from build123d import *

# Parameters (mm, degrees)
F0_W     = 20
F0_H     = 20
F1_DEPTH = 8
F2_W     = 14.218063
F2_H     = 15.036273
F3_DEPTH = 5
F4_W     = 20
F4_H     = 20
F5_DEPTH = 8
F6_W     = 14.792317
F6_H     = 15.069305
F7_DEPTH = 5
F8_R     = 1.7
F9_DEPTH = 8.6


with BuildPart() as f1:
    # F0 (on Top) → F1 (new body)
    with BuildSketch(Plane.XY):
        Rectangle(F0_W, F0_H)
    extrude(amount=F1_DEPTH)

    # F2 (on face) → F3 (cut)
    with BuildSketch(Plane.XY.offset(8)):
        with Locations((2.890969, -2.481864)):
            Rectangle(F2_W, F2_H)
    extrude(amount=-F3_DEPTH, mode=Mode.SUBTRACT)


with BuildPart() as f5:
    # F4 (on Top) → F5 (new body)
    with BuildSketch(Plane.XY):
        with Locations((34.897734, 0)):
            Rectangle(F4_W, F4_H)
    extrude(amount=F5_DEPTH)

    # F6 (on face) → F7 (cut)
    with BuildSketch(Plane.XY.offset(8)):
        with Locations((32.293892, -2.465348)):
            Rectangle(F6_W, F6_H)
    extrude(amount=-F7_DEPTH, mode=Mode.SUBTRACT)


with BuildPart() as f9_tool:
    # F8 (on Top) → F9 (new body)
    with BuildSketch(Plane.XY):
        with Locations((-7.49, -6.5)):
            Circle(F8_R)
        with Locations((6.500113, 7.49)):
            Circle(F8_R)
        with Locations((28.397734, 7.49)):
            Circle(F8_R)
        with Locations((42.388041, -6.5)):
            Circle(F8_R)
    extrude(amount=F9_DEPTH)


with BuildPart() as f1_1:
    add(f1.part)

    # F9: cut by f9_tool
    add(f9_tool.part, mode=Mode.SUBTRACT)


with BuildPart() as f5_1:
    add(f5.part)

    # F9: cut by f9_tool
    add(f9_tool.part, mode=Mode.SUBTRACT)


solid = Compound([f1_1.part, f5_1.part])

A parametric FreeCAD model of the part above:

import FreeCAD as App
import Part
import Sketcher

V = App.Vector
Q = App.Units.Quantity

doc = App.newDocument("Part")
body = doc.addObject("PartDesign::Body", "Body")

# Sketch on XY plane
sketch1 = doc.addObject("Sketcher::SketchObject", "Sketch")
body.addObject(sketch1)
sketch1.AttachmentSupport = (doc.XY_Plane, [""])
sketch1.MapMode = "FlatFace"
sketch1.addGeometry([
    Part.LineSegment(V(-10, 10, 0), V(-10, -10, 0)),
    Part.LineSegment(V(-10, -10, 0), V(10, -10, 0)),
    Part.LineSegment(V(10, -10, 0), V(10, 10, 0)),
    Part.LineSegment(V(10, 10, 0), V(-10, 10, 0)),
], False)
sketch1.addConstraint([
    Sketcher.Constraint("Coincident", 0, 2, 1, 1),
    Sketcher.Constraint("Coincident", 1, 2, 2, 1),
    Sketcher.Constraint("Coincident", 2, 2, 3, 1),
    Sketcher.Constraint("Coincident", 3, 2, 0, 1),
    Sketcher.Constraint("Vertical", 0),
    Sketcher.Constraint("Horizontal", 1),
    Sketcher.Constraint("Vertical", 2),
    Sketcher.Constraint("Horizontal", 3),
    Sketcher.Constraint("Symmetric", 0, 2, 2, 2, -1, 1),
    Sketcher.Constraint("Equal", 3, 0),
    Sketcher.Constraint("DistanceX", 1, 1, 1, 2, Q("20 mm")),
])
pad1 = doc.addObject("PartDesign::Pad", "Pad")
body.addObject(pad1)
pad1.Profile = sketch1
pad1.Length = 8

# Sketch on XY plane
sketch2 = doc.addObject("Sketcher::SketchObject", "Sketch001")
body.addObject(sketch2)
sketch2.AttachmentSupport = (doc.XY_Plane, [""])
sketch2.MapMode = "FlatFace"
sketch2.AttachmentOffset = App.Placement(V(0, 0, 8), App.Rotation())
sketch2.addGeometry([
    Part.LineSegment(V(-4, 5, 0), V(-4, -10, 0)),
    Part.LineSegment(V(-4, -10, 0), V(10, -10, 0)),
    Part.LineSegment(V(10, -10, 0), V(10, 5, 0)),
    Part.LineSegment(V(10, 5, 0), V(-4, 5, 0)),
], False)
sketch2.addConstraint([
    Sketcher.Constraint("Coincident", 0, 2, 1, 1),
    Sketcher.Constraint("Coincident", 1, 2, 2, 1),
    Sketcher.Constraint("Coincident", 2, 2, 3, 1),
    Sketcher.Constraint("Coincident", 3, 2, 0, 1),
    Sketcher.Constraint("Vertical", 0),
    Sketcher.Constraint("Horizontal", 1),
    Sketcher.Constraint("Vertical", 2),
    Sketcher.Constraint("Horizontal", 3),
    Sketcher.Constraint("DistanceY", 0, 2, -1, 1, Q("10.000001 mm")),
    Sketcher.Constraint("DistanceX", -1, 1, 1, 2, Q("10.000001 mm")),
    Sketcher.Constraint("DistanceX", 1, 1, 1, 2, Q("14.218063 mm")),
    Sketcher.Constraint("DistanceY", 0, 2, 0, 1, Q("15.036273 mm")),
])
pocket1 = doc.addObject("PartDesign::Pocket", "Pocket")
body.addObject(pocket1)
pocket1.Profile = sketch2
pocket1.Length = 5
body2 = doc.addObject("PartDesign::Body", "Body001")

# Sketch on XY plane
sketch3 = doc.addObject("Sketcher::SketchObject", "Sketch002")
body2.addObject(sketch3)
sketch3.AttachmentSupport = (doc.getObject("XY_Plane001"), [""])
sketch3.MapMode = "FlatFace"
sketch3.addGeometry([
    Part.LineSegment(V(25, 10, 0), V(25, -10, 0)),
    Part.LineSegment(V(25, -10, 0), V(45, -10, 0)),
    Part.LineSegment(V(45, -10, 0), V(45, 10, 0)),
    Part.LineSegment(V(45, 10, 0), V(25, 10, 0)),
], False)
sketch3.addConstraint([
    Sketcher.Constraint("Coincident", 0, 2, 1, 1),
    Sketcher.Constraint("Coincident", 1, 2, 2, 1),
    Sketcher.Constraint("Coincident", 2, 2, 3, 1),
    Sketcher.Constraint("Coincident", 3, 2, 0, 1),
    Sketcher.Constraint("Vertical", 0),
    Sketcher.Constraint("Horizontal", 1),
    Sketcher.Constraint("Vertical", 2),
    Sketcher.Constraint("Horizontal", 3),
    Sketcher.Constraint("Equal", 3, 0),
    Sketcher.Constraint("DistanceX", 1, 1, 1, 2, Q("20 mm")),
    Sketcher.Constraint("DistanceY", 0, 2, -1, 1, Q("10 mm")),
    Sketcher.Constraint("DistanceX", -1, 1, 0, 2, Q("24.897734 mm")),
])
pad2 = doc.addObject("PartDesign::Pad", "Pad001")
body2.addObject(pad2)
pad2.Profile = sketch3
pad2.Length = 8

# Sketch on XY plane
sketch4 = doc.addObject("Sketcher::SketchObject", "Sketch003")
body2.addObject(sketch4)
sketch4.AttachmentSupport = (doc.getObject("XY_Plane001"), [""])
sketch4.MapMode = "FlatFace"
sketch4.AttachmentOffset = App.Placement(V(0, 0, 8), App.Rotation())
sketch4.addGeometry([
    Part.LineSegment(V(25, 5, 0), V(25, -10, 0)),
    Part.LineSegment(V(25, -10, 0), V(40, -10, 0)),
    Part.LineSegment(V(40, -10, 0), V(40, 5, 0)),
    Part.LineSegment(V(40, 5, 0), V(25, 5, 0)),
], False)
sketch4.addConstraint([
    Sketcher.Constraint("Coincident", 0, 2, 1, 1),
    Sketcher.Constraint("Coincident", 1, 2, 2, 1),
    Sketcher.Constraint("Coincident", 2, 2, 3, 1),
    Sketcher.Constraint("Coincident", 3, 2, 0, 1),
    Sketcher.Constraint("Vertical", 0),
    Sketcher.Constraint("Horizontal", 1),
    Sketcher.Constraint("Vertical", 2),
    Sketcher.Constraint("Horizontal", 3),
    Sketcher.Constraint("DistanceY", 0, 2, -1, 1, Q("10.000001 mm")),
    Sketcher.Constraint("DistanceX", 1, 1, 1, 2, Q("14.792317 mm")),
    Sketcher.Constraint("DistanceY", 0, 2, 0, 1, Q("15.069305 mm")),
    Sketcher.Constraint("DistanceX", -1, 1, 1, 2, Q("39.69005 mm")),
])
pocket2 = doc.addObject("PartDesign::Pocket", "Pocket001")
body2.addObject(pocket2)
pocket2.Profile = sketch4
pocket2.Length = 5
body3 = doc.addObject("PartDesign::Body", "Body002")
body3.AllowCompound = True

# Sketch on XY plane
sketch5 = doc.addObject("Sketcher::SketchObject", "Sketch004")
body3.addObject(sketch5)
sketch5.AttachmentSupport = (doc.getObject("XY_Plane002"), [""])
sketch5.MapMode = "FlatFace"
sketch5.addGeometry([
    Part.Circle(V(-7.5, -6.5, 0), V(0, 0, 1), 1.7),
    Part.Circle(V(6.5, 7.5, 0), V(0, 0, 1), 1.7),
    Part.Circle(V(28.4, 7.5, 0), V(0, 0, 1), 1.7),
    Part.Circle(V(42.4, -6.5, 0), V(0, 0, 1), 1.7),
], False)
sketch5.addConstraint([
    Sketcher.Constraint("Equal", 0, 1),
    Sketcher.Constraint("Equal", 1, 2),
    Sketcher.Constraint("Equal", 2, 3),
    Sketcher.Constraint("Horizontal", 1, 3, 2, 3),
    Sketcher.Constraint("Horizontal", 0, 3, 3, 3),
    Sketcher.Constraint("Diameter", 0, Q("3.4 mm")),
    Sketcher.Constraint("DistanceY", 0, 3, -1, 1, Q("6.5 mm")),
    Sketcher.Constraint("DistanceX", 0, 3, -1, 1, Q("7.49 mm")),
    Sketcher.Constraint("DistanceY", -1, 1, 1, 3, Q("7.49 mm")),
    Sketcher.Constraint("DistanceX", -1, 1, 3, 3, Q("42.388041 mm")),
    Sketcher.Constraint("DistanceX", 1, 3, 2, 3, Q("21.897621 mm")),
    Sketcher.Constraint("DistanceX", 1, 3, 3, 3, Q("35.887928 mm")),
])
pad3 = doc.addObject("PartDesign::Pad", "Pad002")
body3.addObject(pad3)
pad3.Profile = sketch5
pad3.Length = 8.6
doc.recompute()

body4 = doc.addObject("PartDesign::Body", "Body003")
body4.BaseFeature = body3
boolean = doc.addObject("PartDesign::Boolean", "Boolean")
body.addObject(boolean)
boolean.Type = "Cut"
boolean.addObjects([body4])
doc.recompute()

boolean2 = doc.addObject("PartDesign::Boolean", "Boolean001")
body2.addObject(boolean2)
boolean2.Type = "Cut"
boolean2.addObjects([body3])

doc.recompute()
